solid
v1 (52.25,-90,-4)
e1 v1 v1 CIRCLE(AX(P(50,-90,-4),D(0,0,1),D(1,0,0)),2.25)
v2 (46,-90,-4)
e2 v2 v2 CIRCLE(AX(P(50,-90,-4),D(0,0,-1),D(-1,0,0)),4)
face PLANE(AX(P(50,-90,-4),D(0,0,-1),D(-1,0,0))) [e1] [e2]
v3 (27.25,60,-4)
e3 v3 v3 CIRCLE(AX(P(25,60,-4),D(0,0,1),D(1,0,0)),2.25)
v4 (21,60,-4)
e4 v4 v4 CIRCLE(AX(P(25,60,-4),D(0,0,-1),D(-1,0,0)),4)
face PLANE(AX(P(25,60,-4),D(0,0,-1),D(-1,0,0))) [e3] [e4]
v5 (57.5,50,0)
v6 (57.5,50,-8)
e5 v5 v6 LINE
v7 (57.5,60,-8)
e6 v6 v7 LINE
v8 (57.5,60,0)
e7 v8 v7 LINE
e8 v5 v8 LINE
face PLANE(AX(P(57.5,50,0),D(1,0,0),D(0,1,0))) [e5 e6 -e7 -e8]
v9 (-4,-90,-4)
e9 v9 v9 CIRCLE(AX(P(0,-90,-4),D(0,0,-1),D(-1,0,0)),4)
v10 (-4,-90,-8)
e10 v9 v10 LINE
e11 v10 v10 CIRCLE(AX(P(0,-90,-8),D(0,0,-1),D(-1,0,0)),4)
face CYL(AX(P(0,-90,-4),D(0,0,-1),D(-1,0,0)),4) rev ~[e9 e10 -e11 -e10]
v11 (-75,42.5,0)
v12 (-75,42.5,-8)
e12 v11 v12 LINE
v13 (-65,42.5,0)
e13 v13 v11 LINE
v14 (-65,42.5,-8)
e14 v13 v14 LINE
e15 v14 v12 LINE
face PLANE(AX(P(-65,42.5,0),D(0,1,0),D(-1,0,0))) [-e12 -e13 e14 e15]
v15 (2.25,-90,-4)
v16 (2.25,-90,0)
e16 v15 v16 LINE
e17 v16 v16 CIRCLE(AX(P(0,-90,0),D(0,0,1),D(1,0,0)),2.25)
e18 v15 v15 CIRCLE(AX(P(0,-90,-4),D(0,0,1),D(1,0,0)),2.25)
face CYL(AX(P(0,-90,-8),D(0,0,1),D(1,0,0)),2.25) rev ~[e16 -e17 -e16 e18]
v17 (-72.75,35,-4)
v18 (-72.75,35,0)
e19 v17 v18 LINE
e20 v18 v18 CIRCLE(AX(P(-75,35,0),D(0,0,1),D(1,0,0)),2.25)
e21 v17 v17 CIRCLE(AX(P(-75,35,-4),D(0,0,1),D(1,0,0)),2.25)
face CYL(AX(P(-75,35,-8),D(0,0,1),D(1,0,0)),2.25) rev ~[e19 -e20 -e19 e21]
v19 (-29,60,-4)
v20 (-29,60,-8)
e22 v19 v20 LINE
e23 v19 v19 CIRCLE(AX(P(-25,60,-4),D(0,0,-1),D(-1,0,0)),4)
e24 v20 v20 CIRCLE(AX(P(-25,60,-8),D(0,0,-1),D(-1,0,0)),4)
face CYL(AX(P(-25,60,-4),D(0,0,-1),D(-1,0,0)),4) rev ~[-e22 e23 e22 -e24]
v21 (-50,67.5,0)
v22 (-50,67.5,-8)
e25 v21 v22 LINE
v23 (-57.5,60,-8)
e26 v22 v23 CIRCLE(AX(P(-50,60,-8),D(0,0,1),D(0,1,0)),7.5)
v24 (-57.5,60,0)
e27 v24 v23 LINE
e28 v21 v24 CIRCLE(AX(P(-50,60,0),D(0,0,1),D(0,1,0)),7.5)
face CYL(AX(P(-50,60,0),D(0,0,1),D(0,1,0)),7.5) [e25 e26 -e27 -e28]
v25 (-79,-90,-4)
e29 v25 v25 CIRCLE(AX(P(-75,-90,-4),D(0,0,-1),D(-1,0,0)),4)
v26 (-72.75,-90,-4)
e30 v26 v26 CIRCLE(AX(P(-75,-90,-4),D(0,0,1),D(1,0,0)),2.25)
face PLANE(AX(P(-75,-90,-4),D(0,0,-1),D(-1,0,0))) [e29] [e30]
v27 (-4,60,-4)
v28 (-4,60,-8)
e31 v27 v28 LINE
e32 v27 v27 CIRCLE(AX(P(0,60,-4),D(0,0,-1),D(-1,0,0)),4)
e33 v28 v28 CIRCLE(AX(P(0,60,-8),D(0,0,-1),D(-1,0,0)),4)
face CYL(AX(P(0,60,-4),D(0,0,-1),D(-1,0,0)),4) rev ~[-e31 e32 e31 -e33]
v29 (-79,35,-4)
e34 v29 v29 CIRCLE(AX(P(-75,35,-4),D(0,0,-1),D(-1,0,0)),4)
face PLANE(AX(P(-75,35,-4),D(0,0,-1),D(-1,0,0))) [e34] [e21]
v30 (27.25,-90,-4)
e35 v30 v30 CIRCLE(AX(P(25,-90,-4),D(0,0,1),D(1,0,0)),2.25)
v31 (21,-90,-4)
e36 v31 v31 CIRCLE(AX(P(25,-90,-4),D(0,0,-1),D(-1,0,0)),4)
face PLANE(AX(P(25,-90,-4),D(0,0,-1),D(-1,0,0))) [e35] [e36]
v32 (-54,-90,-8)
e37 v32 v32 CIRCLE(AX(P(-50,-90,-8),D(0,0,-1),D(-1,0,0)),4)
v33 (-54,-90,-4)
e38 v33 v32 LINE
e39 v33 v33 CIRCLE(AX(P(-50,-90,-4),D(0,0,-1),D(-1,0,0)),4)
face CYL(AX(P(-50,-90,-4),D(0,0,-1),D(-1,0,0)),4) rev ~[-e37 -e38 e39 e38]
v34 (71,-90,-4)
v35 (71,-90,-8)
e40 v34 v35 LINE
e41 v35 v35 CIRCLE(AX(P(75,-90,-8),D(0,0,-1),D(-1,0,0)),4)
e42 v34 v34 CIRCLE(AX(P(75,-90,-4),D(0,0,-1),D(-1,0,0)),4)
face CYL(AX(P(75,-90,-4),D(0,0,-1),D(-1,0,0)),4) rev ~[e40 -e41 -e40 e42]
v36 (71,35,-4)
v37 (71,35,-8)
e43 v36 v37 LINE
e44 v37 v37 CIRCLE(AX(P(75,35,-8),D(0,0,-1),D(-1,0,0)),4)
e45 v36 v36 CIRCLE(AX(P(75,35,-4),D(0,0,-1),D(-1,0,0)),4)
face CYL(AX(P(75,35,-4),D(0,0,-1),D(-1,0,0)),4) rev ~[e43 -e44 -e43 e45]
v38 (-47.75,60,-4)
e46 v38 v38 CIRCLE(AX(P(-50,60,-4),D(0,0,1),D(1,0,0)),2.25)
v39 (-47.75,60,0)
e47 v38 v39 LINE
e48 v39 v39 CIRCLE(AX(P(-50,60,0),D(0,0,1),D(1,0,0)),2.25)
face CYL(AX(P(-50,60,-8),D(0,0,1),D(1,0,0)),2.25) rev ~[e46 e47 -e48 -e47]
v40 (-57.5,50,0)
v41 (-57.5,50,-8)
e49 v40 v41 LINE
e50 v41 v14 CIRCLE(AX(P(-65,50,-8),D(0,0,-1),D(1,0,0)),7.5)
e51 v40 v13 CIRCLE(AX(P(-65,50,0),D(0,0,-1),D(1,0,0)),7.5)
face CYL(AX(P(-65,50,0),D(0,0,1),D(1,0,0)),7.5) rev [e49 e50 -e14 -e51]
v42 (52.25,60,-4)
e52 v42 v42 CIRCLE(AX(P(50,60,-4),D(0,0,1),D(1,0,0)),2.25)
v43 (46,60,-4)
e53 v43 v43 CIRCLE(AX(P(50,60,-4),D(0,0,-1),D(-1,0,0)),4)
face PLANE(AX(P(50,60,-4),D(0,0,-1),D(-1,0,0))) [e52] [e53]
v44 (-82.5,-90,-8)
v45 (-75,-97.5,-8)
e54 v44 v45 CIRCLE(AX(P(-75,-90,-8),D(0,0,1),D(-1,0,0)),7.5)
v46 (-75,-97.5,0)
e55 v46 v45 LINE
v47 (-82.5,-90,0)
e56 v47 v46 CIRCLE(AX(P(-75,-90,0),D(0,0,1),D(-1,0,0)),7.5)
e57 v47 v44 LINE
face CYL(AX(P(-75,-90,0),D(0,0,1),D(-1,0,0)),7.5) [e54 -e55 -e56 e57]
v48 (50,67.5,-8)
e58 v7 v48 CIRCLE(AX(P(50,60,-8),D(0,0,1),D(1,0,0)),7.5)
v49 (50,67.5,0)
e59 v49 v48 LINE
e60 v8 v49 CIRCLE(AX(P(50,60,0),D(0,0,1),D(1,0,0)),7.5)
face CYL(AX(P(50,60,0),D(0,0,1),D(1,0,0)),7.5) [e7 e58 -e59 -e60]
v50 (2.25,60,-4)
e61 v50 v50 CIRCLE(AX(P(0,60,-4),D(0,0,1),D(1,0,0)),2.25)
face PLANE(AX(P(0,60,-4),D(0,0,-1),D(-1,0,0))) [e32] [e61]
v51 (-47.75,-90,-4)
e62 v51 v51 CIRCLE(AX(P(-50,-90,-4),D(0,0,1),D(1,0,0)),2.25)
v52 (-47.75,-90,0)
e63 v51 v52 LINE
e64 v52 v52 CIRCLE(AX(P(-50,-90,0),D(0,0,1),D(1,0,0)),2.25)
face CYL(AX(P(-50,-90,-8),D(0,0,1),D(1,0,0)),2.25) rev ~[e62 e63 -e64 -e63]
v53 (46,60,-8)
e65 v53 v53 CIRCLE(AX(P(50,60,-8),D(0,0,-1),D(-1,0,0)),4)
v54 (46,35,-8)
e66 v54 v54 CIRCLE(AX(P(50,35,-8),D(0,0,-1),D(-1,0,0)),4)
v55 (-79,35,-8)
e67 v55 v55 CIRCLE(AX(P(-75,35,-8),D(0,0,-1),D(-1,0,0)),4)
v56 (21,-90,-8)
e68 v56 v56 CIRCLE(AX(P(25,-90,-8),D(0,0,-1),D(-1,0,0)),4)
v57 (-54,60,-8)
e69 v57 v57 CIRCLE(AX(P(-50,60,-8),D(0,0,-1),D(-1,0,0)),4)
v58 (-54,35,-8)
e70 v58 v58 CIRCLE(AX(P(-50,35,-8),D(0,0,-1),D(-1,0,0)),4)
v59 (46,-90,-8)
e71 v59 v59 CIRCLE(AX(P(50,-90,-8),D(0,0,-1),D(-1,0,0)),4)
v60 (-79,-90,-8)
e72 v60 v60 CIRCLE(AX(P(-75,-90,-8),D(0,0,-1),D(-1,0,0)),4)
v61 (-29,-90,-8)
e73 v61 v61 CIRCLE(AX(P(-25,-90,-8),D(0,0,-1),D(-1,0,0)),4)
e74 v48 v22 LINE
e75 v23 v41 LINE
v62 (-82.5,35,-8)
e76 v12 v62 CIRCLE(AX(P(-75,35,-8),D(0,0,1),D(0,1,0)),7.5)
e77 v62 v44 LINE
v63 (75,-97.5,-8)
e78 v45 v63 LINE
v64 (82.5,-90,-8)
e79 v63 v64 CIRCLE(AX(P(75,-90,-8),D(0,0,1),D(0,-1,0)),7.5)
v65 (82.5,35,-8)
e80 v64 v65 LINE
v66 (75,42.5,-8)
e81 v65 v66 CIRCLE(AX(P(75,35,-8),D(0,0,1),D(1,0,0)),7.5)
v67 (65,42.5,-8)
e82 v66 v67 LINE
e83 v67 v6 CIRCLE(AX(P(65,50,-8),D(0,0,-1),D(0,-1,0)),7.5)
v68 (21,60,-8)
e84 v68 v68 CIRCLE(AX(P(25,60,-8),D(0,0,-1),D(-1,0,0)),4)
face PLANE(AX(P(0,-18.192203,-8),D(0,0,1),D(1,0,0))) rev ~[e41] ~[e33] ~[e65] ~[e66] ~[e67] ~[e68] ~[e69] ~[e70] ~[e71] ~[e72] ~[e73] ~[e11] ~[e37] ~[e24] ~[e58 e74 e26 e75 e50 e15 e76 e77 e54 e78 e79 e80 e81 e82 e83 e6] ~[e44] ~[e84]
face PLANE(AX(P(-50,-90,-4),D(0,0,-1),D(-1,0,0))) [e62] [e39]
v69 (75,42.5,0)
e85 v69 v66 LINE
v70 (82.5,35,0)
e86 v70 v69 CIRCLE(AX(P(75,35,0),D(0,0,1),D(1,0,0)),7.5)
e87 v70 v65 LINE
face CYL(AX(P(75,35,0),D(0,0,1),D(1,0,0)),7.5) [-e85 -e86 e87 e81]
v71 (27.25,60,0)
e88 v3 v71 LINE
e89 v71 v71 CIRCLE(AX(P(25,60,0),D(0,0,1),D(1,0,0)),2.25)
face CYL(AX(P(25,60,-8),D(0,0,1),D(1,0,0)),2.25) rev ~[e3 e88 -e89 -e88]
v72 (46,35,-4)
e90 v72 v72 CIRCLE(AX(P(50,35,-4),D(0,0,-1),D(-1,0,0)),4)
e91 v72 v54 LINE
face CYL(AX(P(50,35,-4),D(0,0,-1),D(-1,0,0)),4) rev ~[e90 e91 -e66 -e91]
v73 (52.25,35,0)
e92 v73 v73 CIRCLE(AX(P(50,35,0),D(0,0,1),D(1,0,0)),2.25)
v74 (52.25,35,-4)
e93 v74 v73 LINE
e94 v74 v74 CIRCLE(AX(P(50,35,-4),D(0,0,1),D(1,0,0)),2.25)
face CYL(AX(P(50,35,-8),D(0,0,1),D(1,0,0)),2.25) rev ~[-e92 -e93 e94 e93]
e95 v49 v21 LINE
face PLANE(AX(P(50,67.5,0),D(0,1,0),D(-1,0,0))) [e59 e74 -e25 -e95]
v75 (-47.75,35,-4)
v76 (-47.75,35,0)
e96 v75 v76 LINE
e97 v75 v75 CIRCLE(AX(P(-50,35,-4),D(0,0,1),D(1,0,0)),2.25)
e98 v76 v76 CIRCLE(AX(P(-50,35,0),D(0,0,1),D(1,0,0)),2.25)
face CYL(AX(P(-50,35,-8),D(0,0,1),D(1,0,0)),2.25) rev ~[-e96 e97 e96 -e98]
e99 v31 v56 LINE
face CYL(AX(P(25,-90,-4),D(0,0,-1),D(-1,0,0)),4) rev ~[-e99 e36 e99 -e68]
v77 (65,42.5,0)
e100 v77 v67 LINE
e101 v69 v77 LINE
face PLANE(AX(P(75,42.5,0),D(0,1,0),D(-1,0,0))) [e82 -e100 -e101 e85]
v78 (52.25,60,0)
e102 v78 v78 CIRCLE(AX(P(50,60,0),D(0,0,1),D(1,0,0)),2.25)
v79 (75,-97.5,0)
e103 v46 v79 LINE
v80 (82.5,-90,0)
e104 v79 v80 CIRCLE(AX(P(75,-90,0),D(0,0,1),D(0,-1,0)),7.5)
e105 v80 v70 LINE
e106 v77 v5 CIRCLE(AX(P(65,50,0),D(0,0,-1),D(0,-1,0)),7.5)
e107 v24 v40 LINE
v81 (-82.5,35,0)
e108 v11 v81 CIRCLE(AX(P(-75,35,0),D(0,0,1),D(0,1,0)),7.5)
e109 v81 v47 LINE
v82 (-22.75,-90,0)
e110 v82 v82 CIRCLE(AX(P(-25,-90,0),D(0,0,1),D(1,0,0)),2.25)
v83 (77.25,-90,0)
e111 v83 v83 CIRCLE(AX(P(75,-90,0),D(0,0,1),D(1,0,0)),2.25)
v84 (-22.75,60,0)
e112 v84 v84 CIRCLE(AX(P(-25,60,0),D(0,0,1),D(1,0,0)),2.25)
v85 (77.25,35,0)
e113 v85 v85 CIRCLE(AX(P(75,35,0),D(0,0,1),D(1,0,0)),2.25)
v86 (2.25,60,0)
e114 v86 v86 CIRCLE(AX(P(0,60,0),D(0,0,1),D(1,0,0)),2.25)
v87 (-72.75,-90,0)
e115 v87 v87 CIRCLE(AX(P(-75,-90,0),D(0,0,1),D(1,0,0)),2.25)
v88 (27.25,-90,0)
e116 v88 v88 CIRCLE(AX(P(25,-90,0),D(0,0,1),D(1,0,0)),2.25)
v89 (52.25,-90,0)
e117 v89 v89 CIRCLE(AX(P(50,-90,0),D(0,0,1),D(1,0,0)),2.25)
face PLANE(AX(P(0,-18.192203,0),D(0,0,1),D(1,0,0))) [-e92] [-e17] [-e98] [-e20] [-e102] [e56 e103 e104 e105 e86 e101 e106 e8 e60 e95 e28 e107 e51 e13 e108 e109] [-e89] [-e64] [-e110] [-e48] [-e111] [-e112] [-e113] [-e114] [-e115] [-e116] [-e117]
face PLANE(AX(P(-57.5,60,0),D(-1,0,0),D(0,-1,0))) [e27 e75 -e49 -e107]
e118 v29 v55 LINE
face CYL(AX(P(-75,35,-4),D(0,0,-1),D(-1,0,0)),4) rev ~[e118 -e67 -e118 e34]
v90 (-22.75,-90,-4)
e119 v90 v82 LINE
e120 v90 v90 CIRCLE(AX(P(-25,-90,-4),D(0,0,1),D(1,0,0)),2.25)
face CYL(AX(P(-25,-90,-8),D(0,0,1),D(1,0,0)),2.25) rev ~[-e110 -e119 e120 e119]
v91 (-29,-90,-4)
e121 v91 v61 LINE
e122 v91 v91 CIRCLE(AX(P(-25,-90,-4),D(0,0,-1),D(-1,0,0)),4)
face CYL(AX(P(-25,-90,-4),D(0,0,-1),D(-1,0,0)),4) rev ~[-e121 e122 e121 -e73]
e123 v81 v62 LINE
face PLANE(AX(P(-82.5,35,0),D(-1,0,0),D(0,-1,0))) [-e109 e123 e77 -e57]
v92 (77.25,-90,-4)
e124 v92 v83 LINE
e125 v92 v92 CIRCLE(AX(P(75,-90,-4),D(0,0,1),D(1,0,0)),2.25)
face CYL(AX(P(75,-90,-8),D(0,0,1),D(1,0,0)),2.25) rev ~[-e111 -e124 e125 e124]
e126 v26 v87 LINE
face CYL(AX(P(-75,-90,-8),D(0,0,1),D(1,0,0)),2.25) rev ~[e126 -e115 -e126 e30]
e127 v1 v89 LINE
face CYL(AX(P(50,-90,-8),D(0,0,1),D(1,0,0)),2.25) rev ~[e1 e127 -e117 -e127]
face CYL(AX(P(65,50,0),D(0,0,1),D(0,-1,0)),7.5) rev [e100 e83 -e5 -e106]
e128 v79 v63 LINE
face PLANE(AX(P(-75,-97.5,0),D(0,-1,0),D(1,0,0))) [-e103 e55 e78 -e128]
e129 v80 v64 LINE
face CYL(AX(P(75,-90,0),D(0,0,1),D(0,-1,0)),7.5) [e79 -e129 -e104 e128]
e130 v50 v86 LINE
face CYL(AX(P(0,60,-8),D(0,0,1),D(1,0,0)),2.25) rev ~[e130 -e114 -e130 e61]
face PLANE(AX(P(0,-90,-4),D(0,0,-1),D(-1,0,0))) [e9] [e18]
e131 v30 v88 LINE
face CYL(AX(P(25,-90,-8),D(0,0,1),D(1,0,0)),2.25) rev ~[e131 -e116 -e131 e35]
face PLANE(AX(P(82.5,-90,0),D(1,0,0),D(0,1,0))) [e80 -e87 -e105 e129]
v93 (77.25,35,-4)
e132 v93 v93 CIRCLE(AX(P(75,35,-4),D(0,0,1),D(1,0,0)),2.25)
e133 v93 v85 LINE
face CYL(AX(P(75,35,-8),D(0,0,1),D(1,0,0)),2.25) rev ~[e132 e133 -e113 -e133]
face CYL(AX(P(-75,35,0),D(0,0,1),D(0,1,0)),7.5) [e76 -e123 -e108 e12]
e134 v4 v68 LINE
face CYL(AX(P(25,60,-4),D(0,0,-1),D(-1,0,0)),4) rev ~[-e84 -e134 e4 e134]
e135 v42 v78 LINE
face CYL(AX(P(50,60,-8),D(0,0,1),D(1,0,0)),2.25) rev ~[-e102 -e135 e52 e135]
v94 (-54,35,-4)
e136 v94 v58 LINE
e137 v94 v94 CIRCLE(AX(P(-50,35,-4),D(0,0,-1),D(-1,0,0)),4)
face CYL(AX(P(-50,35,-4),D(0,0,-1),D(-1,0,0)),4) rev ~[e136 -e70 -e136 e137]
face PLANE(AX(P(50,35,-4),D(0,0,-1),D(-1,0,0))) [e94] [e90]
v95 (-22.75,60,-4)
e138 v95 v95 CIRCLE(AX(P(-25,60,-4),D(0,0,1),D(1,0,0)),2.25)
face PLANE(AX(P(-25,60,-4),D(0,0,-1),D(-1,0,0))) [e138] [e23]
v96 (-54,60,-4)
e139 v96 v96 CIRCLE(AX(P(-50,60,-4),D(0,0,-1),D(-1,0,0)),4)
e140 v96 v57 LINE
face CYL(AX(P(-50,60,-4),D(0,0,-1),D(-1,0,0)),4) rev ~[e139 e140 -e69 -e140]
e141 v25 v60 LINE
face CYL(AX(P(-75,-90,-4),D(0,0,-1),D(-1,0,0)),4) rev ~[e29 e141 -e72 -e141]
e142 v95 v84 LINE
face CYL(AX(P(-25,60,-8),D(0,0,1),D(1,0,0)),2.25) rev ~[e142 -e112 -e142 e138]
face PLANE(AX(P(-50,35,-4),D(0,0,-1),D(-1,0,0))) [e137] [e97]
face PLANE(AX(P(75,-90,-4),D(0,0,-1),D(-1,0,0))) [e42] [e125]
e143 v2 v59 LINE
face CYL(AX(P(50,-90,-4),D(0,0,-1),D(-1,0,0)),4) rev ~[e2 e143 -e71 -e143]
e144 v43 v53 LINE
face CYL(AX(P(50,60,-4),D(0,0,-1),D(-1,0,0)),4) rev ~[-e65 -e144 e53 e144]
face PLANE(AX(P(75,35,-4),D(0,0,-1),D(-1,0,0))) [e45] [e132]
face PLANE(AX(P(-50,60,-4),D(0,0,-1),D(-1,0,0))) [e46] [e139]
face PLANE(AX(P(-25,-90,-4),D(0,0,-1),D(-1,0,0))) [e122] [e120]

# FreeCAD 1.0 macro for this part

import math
import FreeCAD as App
import Part
import Sketcher
from FreeCAD import Vector
Q = App.Units.Quantity

doc = App.newDocument("Part")
body = doc.addObject("PartDesign::Body", "Body")

# Sketch on XY plane
sketch1 = doc.addObject("Sketcher::SketchObject", "Sketch")
body.addObject(sketch1)
sketch1.AttachmentSupport = (doc.XY_Plane, [""])
sketch1.MapMode = "FlatFace"
sketch1.addGeometry([
    Part.LineSegment(Vector(-58, 60, 0), Vector(-58, 50, 0)),  # 0
    Part.ArcOfCircle(Part.Circle(Vector(-65, 50, 0), Vector(0, 0, 1), 8), math.radians(-90), math.radians(0)),  # 1
    Part.LineSegment(Vector(-65, 42, 0), Vector(-75, 42, 0)),  # 2
    Part.ArcOfCircle(Part.Circle(Vector(-75, 35, 0), Vector(0, 0, 1), 8), math.radians(90), math.radians(180)),  # 3
    Part.LineSegment(Vector(-82, 35, 0), Vector(-82, -90, 0)),  # 4
    Part.ArcOfCircle(Part.Circle(Vector(-75, -90, 0), Vector(0, 0, 1), 8), math.radians(180), math.radians(270)),  # 5
    Part.LineSegment(Vector(-75, -98, 0), Vector(75, -98, 0)),  # 6
    Part.ArcOfCircle(Part.Circle(Vector(75, -90, 0), Vector(0, 0, 1), 8), math.radians(-90), math.radians(0)),  # 7
    Part.LineSegment(Vector(82, -90, 0), Vector(82, 35, 0)),  # 8
    Part.ArcOfCircle(Part.Circle(Vector(75, 35, 0), Vector(0, 0, 1), 8), math.radians(0), math.radians(90)),  # 9
    Part.LineSegment(Vector(75, 42, 0), Vector(65, 42, 0)),  # 10
    Part.ArcOfCircle(Part.Circle(Vector(65, 50, 0), Vector(0, 0, 1), 8), math.radians(180), math.radians(270)),  # 11
    Part.LineSegment(Vector(58, 50, 0), Vector(58, 60, 0)),  # 12
    Part.ArcOfCircle(Part.Circle(Vector(50, 60, 0), Vector(0, 0, 1), 8), math.radians(0), math.radians(90)),  # 13
    Part.LineSegment(Vector(50, 68, 0), Vector(-50, 68, 0)),  # 14
    Part.ArcOfCircle(Part.Circle(Vector(-50, 60, 0), Vector(0, 0, 1), 8), math.radians(90), math.radians(180)),  # 15
], False)
sketch1.addConstraint([
    Sketcher.Constraint("Tangent", 0, 2, 1, 2),
    Sketcher.Constraint("Tangent", 1, 1, 2, 1),
    Sketcher.Constraint("Tangent", 2, 2, 3, 1),
    Sketcher.Constraint("Tangent", 3, 2, 4, 1),
    Sketcher.Constraint("Tangent", 4, 2, 5, 1),
    Sketcher.Constraint("Tangent", 5, 2, 6, 1),
    Sketcher.Constraint("Tangent", 6, 2, 7, 1),
    Sketcher.Constraint("Tangent", 7, 2, 8, 1),
    Sketcher.Constraint("Tangent", 8, 2, 9, 1),
    Sketcher.Constraint("Tangent", 9, 2, 10, 1),
    Sketcher.Constraint("Tangent", 10, 2, 11, 2),
    Sketcher.Constraint("Tangent", 11, 1, 12, 1),
    Sketcher.Constraint("Tangent", 12, 2, 13, 1),
    Sketcher.Constraint("Tangent", 13, 2, 14, 1),
    Sketcher.Constraint("Tangent", 14, 2, 15, 1),
    Sketcher.Constraint("Tangent", 15, 2, 0, 1),
    Sketcher.Constraint("Vertical", 0),
    Sketcher.Constraint("Horizontal", 2),
    Sketcher.Constraint("Vertical", 4),
    Sketcher.Constraint("Horizontal", 6),
    Sketcher.Constraint("Vertical", 8),
    Sketcher.Constraint("Horizontal", 10),
    Sketcher.Constraint("Vertical", 12),
    Sketcher.Constraint("Horizontal", 14),
    Sketcher.Constraint("Equal", 1, 3),
    Sketcher.Constraint("Equal", 3, 5),
    Sketcher.Constraint("Equal", 5, 7),
    Sketcher.Constraint("Equal", 7, 9),
    Sketcher.Constraint("Equal", 9, 11),
    Sketcher.Constraint("Equal", 11, 13),
    Sketcher.Constraint("Equal", 13, 15),
    Sketcher.Constraint("Symmetric", 3, 3, 9, 3, -2),
    Sketcher.Constraint("Equal", 2, 10),
    Sketcher.Constraint("Equal", 10, 0),
    Sketcher.Constraint("Radius", 1, Q("7.5 mm")),
    Sketcher.Constraint("DistanceX", 2, 2, 2, 1, Q("10 mm")),
    Sketcher.Constraint("DistanceX", 6, 1, 6, 2, Q("150 mm")),
    Sketcher.Constraint("DistanceY", 4, 2, 4, 1, Q("125 mm")),
    Sketcher.Constraint("DistanceY", -1, 1, 1, 3, Q("50 mm")),
])
pad1 = doc.addObject("PartDesign::Pad", "Pad")
body.addObject(pad1)
pad1.Profile = sketch1
pad1.Length = 8
pad1.Reversed = True

# Sketch on XY plane
sketch2 = doc.addObject("Sketcher::SketchObject", "Sketch001")
body.addObject(sketch2)
sketch2.AttachmentSupport = (doc.XY_Plane, [""])
sketch2.MapMode = "FlatFace"
sketch2.AttachmentOffset = App.Placement(Vector(0, 0, -8), App.Rotation())
sketch2.addGeometry([
    Part.Circle(Vector(75, 35, 0), Vector(0, 0, 1), 2.2),  # 0
    Part.Circle(Vector(50, 35, 0), Vector(0, 0, 1), 2.2),  # 1
    Part.Circle(Vector(50, 60, 0), Vector(0, 0, 1), 2.2),  # 2
    Part.Circle(Vector(25, 60, 0), Vector(0, 0, 1), 2.2),  # 3
    Part.Circle(Vector(0, 60, 0), Vector(0, 0, 1), 2.2),  # 4
    Part.Circle(Vector(-25, 60, 0), Vector(0, 0, 1), 2.2),  # 5
    Part.Circle(Vector(-50, 60, 0), Vector(0, 0, 1), 2.2),  # 6
    Part.Circle(Vector(-50, 35, 0), Vector(0, 0, 1), 2.2),  # 7
    Part.Circle(Vector(-75, 35, 0), Vector(0, 0, 1), 2.2),  # 8
    Part.Circle(Vector(75, -90, 0), Vector(0, 0, 1), 2.2),  # 9
    Part.Circle(Vector(50, -90, 0), Vector(0, 0, 1), 2.2),  # 10
    Part.Circle(Vector(25, -90, 0), Vector(0, 0, 1), 2.2),  # 11
    Part.Circle(Vector(0, -90, 0), Vector(0, 0, 1), 2.2),  # 12
    Part.Circle(Vector(-25, -90, 0), Vector(0, 0, 1), 2.2),  # 13
    Part.Circle(Vector(-50, -90, 0), Vector(0, 0, 1), 2.2),  # 14
    Part.Circle(Vector(-75, -90, 0), Vector(0, 0, 1), 2.2),  # 15
], False)
sketch2.addConstraint([
    Sketcher.Constraint("Equal", 0, 1),
    Sketcher.Constraint("Equal", 1, 2),
    Sketcher.Constraint("Equal", 2, 3),
    Sketcher.Constraint("Equal", 3, 4),
    Sketcher.Constraint("Equal", 4, 5),
    Sketcher.Constraint("Equal", 5, 6),
    Sketcher.Constraint("Equal", 6, 7),
    Sketcher.Constraint("Equal", 7, 8),
    Sketcher.Constraint("Equal", 8, 9),
    Sketcher.Constraint("Equal", 9, 10),
    Sketcher.Constraint("Equal", 10, 11),
    Sketcher.Constraint("Equal", 11, 12),
    Sketcher.Constraint("Equal", 12, 13),
    Sketcher.Constraint("Equal", 13, 14),
    Sketcher.Constraint("Equal", 14, 15),
    Sketcher.Constraint("Symmetric", 3, 3, 5, 3, -2),
    Sketcher.Constraint("Symmetric", 2, 3, 6, 3, -2),
    Sketcher.Constraint("Symmetric", 1, 3, 7, 3, -2),
    Sketcher.Constraint("Symmetric", 0, 3, 8, 3, -2),
    Sketcher.Constraint("Symmetric", 11, 3, 13, 3, -2),
    Sketcher.Constraint("Symmetric", 10, 3, 14, 3, -2),
    Sketcher.Constraint("Symmetric", 9, 3, 15, 3, -2),
    Sketcher.Constraint("PointOnObject", 4, 3, -2),
    Sketcher.Constraint("PointOnObject", 12, 3, -2),
    Sketcher.Constraint("Horizontal", 0, 3, 1, 3),
    Sketcher.Constraint("Horizontal", 2, 3, 3, 3),
    Sketcher.Constraint("Horizontal", 3, 3, 4, 3),
    Sketcher.Constraint("Horizontal", 9, 3, 10, 3),
    Sketcher.Constraint("Horizontal", 10, 3, 11, 3),
    Sketcher.Constraint("Horizontal", 11, 3, 12, 3),
    Sketcher.Constraint("Vertical", 1, 3, 2, 3),
    Sketcher.Constraint("Vertical", 0, 3, 9, 3),
    Sketcher.Constraint("Vertical", 2, 3, 10, 3),
    Sketcher.Constraint("Vertical", 3, 3, 11, 3),
    Sketcher.Constraint("Diameter", 0, Q("4.5 mm")),
    Sketcher.Constraint("DistanceX", -1, 1, 0, 3, Q("75 mm")),
    Sketcher.Constraint("DistanceY", -1, 1, 0, 3, Q("35 mm")),
    Sketcher.Constraint("DistanceX", -1, 1, 1, 3, Q("50 mm")),
    Sketcher.Constraint("DistanceY", -1, 1, 2, 3, Q("60 mm")),
    Sketcher.Constraint("DistanceX", -1, 1, 3, 3, Q("25 mm")),
    Sketcher.Constraint("DistanceY", 9, 3, -1, 1, Q("90 mm")),
])
doc.recompute()
hole = doc.addObject("PartDesign::Hole", "Hole")
body.addObject(hole)
hole.Profile = sketch2
hole.ThreadType = "None"
hole.Diameter = 4.5
hole.DepthType = "ThroughAll"
hole.HoleCutType = "Counterbore"
hole.HoleCutDiameter = 8
hole.HoleCutDepth = 4
hole.Reversed = True

doc.recompute()
